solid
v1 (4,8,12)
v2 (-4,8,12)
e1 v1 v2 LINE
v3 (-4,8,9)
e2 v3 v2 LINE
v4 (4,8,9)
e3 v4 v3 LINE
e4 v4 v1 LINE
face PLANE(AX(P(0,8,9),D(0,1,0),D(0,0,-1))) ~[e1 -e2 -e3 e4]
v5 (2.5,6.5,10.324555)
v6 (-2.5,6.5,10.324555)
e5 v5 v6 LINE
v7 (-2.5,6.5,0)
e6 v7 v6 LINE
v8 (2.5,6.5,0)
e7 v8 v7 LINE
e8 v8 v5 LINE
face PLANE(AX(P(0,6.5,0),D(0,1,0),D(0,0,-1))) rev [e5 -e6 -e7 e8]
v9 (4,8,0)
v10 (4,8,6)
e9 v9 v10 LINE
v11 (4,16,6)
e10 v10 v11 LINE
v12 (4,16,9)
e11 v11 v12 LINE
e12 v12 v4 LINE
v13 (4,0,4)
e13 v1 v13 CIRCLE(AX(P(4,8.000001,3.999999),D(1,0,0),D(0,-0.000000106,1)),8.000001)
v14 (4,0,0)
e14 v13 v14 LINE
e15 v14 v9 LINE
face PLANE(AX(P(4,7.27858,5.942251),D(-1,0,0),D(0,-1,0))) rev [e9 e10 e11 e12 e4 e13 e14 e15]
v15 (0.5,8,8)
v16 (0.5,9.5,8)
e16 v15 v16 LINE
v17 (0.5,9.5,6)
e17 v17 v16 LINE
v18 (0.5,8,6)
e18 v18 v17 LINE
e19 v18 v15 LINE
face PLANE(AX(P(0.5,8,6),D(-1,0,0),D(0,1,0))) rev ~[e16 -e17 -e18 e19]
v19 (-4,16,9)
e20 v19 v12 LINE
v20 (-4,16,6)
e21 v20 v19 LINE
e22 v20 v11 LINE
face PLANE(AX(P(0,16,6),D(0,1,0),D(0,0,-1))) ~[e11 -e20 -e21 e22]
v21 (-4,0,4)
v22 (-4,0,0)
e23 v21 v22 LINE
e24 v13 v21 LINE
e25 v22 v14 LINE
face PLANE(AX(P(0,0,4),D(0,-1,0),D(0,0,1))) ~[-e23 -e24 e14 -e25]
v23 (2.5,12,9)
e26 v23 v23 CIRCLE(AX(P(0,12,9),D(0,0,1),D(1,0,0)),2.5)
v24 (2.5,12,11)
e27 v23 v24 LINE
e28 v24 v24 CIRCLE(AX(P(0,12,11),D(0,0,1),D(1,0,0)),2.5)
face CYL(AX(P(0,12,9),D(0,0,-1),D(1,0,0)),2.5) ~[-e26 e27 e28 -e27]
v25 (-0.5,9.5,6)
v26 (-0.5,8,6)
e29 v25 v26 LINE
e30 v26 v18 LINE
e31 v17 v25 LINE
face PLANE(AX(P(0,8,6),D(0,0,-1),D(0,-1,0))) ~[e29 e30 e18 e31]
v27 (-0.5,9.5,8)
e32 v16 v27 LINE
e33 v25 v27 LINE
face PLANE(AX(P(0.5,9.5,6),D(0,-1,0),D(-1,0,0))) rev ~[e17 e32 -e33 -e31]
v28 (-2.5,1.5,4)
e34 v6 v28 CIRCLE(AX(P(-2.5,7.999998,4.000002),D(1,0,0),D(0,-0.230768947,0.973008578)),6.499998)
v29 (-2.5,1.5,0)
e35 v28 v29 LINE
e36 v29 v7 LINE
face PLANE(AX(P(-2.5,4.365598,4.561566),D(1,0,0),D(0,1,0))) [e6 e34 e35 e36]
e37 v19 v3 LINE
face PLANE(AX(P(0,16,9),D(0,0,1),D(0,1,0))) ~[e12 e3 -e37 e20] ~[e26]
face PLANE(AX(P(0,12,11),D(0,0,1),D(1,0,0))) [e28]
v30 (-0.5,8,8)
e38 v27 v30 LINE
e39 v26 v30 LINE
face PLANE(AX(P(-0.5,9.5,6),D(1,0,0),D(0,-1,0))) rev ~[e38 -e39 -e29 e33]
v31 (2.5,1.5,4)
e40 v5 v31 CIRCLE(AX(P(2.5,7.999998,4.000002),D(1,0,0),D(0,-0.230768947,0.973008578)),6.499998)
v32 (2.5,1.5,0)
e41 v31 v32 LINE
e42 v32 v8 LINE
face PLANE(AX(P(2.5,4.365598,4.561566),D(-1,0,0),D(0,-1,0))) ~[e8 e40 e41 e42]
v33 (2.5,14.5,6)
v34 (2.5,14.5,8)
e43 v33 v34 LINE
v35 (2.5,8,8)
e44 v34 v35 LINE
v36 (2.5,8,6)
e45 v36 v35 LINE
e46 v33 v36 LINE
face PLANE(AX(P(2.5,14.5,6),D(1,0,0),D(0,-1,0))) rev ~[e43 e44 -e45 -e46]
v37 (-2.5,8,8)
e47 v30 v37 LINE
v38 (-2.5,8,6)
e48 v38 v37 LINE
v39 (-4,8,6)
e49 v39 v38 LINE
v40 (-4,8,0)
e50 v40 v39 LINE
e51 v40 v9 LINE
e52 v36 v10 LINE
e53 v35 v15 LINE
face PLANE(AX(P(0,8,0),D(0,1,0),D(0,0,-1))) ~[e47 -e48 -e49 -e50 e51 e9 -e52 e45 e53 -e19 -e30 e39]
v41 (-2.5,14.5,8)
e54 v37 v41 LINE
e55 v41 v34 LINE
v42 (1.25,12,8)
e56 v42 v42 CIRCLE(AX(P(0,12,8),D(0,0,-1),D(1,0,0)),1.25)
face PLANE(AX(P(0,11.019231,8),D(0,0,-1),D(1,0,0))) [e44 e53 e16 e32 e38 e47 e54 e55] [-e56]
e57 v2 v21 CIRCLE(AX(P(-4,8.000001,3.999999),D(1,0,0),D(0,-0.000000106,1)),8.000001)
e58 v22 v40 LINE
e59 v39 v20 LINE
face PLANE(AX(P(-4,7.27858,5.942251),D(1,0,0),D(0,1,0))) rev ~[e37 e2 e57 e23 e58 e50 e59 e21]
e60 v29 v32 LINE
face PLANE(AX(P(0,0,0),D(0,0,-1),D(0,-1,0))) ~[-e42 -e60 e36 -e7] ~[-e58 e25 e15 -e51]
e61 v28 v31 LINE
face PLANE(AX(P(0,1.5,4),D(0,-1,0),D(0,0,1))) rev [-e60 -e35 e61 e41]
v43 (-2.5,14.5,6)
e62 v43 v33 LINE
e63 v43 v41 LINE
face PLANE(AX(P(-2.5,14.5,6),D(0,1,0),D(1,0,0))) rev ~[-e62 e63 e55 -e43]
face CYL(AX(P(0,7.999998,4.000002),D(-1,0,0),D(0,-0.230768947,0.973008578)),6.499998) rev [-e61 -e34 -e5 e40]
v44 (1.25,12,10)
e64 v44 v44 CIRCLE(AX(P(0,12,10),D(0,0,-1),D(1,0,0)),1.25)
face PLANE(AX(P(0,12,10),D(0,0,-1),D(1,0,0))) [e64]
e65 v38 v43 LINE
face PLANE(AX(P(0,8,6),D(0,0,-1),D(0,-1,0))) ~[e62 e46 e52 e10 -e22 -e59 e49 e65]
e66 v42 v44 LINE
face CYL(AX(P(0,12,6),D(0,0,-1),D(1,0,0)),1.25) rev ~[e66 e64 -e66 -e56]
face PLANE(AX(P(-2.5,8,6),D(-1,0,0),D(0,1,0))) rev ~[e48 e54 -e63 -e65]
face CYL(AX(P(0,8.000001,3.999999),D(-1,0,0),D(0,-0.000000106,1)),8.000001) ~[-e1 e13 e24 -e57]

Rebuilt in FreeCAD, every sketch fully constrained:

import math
import FreeCAD as App
import Part
import Sketcher

doc = App.newDocument("Part")
body = doc.addObject("PartDesign::Body", "Body")

sketch1 = body.newObject("Sketcher::SketchObject", "Sketch")
sketch1.AttachmentSupport = (doc.getObject("YZ_Plane"), [""])
sketch1.MapMode = "FlatFace"
sketch1.addGeometry([
    Part.LineSegment(App.Vector(0, 4, 0), App.Vector(0, 0, 0)),
    Part.LineSegment(App.Vector(0, 0, 0), App.Vector(8, 0, 0)),
    Part.LineSegment(App.Vector(8, 0, 0), App.Vector(8, 6, 0)),
    Part.LineSegment(App.Vector(8, 6, 0), App.Vector(16, 6, 0)),
    Part.LineSegment(App.Vector(16, 6, 0), App.Vector(16, 9, 0)),
    Part.LineSegment(App.Vector(16, 9, 0), App.Vector(8, 9, 0)),
    Part.LineSegment(App.Vector(8, 9, 0), App.Vector(8, 12, 0)),
    Part.ArcOfCircle(Part.Circle(App.Vector(8, 4, 0), App.Vector(0, 0, 1), 8), math.radians(90), math.radians(180)),
], False)
sketch1.addConstraint([
    Sketcher.Constraint("Coincident", 0, 2, 1, 1),
    Sketcher.Constraint("Coincident", 1, 2, 2, 1),
    Sketcher.Constraint("Coincident", 2, 2, 3, 1),
    Sketcher.Constraint("Coincident", 3, 2, 4, 1),
    Sketcher.Constraint("Coincident", 4, 2, 5, 1),
    Sketcher.Constraint("Coincident", 5, 2, 6, 1),
    Sketcher.Constraint("Coincident", 6, 2, 7, 1),
    Sketcher.Constraint("Tangent", 7, 2, 0, 1),
    Sketcher.Constraint("Vertical", 0),
    Sketcher.Constraint("Horizontal", 1),
    Sketcher.Constraint("Vertical", 2),
    Sketcher.Constraint("Horizontal", 3),
    Sketcher.Constraint("Vertical", 4),
    Sketcher.Constraint("Horizontal", 5),
    Sketcher.Constraint("Vertical", 6),
    Sketcher.Constraint("Coincident", 0, 2, -1, 1),
    Sketcher.Constraint("Vertical", 7, 3, 1, 2),
    Sketcher.Constraint("Vertical", 2, 2, 5, 2),
    Sketcher.Constraint("Equal", 1, 3),
    Sketcher.Constraint("Equal", 4, 6),
    Sketcher.Constraint("Radius", 7, 8.000001),
    Sketcher.Constraint("DistanceY", 0, 2, 0, 1, 4.0),
    Sketcher.Constraint("DistanceY", 2, 1, 2, 2, 6.0),
])
pad1 = body.newObject("PartDesign::Pad", "Pad")
pad1.Profile = sketch1
pad1.Length = 4
pad1.Reversed = True

sketch2 = body.newObject("Sketcher::SketchObject", "Sketch001")
sketch2.AttachmentSupport = (doc.getObject("YZ_Plane"), [""])
sketch2.MapMode = "FlatFace"
sketch2.addGeometry([
    Part.LineSegment(App.Vector(6.5, 0, 0), App.Vector(6.5, 10.3, 0)),
    Part.ArcOfCircle(Part.Circle(App.Vector(8, 4, 0), App.Vector(0, 0, 1), 6.5), math.radians(103), math.radians(180)),
    Part.LineSegment(App.Vector(1.5, 4, 0), App.Vector(1.5, 0, 0)),
    Part.LineSegment(App.Vector(1.5, 0, 0), App.Vector(6.5, 0, 0)),
], False)
sketch2.addConstraint([
    Sketcher.Constraint("Coincident", 0, 2, 1, 1),
    Sketcher.Constraint("Tangent", 1, 2, 2, 1),
    Sketcher.Constraint("Coincident", 2, 2, 3, 1),
    Sketcher.Constraint("Coincident", 3, 2, 0, 1),
    Sketcher.Constraint("Vertical", 0),
    Sketcher.Constraint("Vertical", 2),
    Sketcher.Constraint("Horizontal", 3),
    Sketcher.Constraint("PointOnObject", 2, 2, -1),
    Sketcher.Constraint("DistanceX", 3, 1, 3, 2, 5.0),
    Sketcher.Constraint("DistanceY", 2, 2, 2, 1, 4.0),
    Sketcher.Constraint("DistanceX", -1, 1, 0, 2, 6.5),
    Sketcher.Constraint("Radius", 1, 6.499998),
])
pocket1 = body.newObject("PartDesign::Pocket", "Pocket")
pocket1.Profile = sketch2
pocket1.Length = 2.5
body2 = doc.addObject("PartDesign::Body", "Body001")
doc.recompute()

body2.BaseFeature = body
doc.recompute()

mirroring = doc.addObject("Part::Mirroring", "Mirroring")
mirroring.Source = body
mirroring.Base = App.Vector(0, 7.388969, 6.713356)
mirroring.Normal = App.Vector(1, 0, 0)
body3 = doc.addObject("PartDesign::Body", "Body002")
body3.BaseFeature = mirroring
boolean = body2.newObject("PartDesign::Boolean", "Boolean")
boolean.Type = "Fuse"
boolean.addObjects([body3])
doc.recompute()

sketch3 = body2.newObject("Sketcher::SketchObject", "Sketch002")
sketch3.AttachmentSupport = (doc.getObject("XY_Plane001"), [""])
sketch3.MapMode = "FlatFace"
sketch3.AttachmentOffset = App.Placement(App.Vector(0, 0, 9), App.Rotation())
sketch3.addGeometry(Part.Circle(App.Vector(0, 12, 0), App.Vector(0, 0, 1), 2.5), False)
sketch3.addConstraint([
    Sketcher.Constraint("PointOnObject", 0, 3, -2),
    Sketcher.Constraint("Diameter", 0, 5.0),
    Sketcher.Constraint("DistanceY", -1, 1, 0, 3, 12.0),
])
pad2 = body2.newObject("PartDesign::Pad", "Pad001")
pad2.Profile = sketch3
pad2.Length = 2

sketch4 = body2.newObject("Sketcher::SketchObject", "Sketch003")
sketch4.AttachmentSupport = (doc.getObject("XY_Plane001"), [""])
sketch4.MapMode = "FlatFace"
sketch4.AttachmentOffset = App.Placement(App.Vector(0, 0, 6), App.Rotation())
sketch4.addGeometry(Part.Circle(App.Vector(0, 12, 0), App.Vector(0, 0, 1), 1.2), False)
sketch4.addConstraint([
    Sketcher.Constraint("PointOnObject", 0, 3, -2),
    Sketcher.Constraint("Diameter", 0, 2.5),
    Sketcher.Constraint("DistanceY", -1, 1, 0, 3, 12.0),
])
pocket2 = body2.newObject("PartDesign::Pocket", "Pocket001")
pocket2.Profile = sketch4
pocket2.Length = 4
pocket2.Reversed = True

sketch5 = body2.newObject("Sketcher::SketchObject", "Sketch004")
sketch5.AttachmentSupport = (doc.getObject("XY_Plane001"), [""])
sketch5.MapMode = "FlatFace"
sketch5.AttachmentOffset = App.Placement(App.Vector(0, 0, 6), App.Rotation())
sketch5.addGeometry([
    Part.LineSegment(App.Vector(-2.5, 8, 0), App.Vector(-2.5, 14.5, 0)),
    Part.LineSegment(App.Vector(-2.5, 14.5, 0), App.Vector(2.5, 14.5, 0)),
    Part.LineSegment(App.Vector(2.5, 14.5, 0), App.Vector(2.5, 8, 0)),
    Part.LineSegment(App.Vector(2.5, 8, 0), App.Vector(0.5, 8, 0)),
    Part.LineSegment(App.Vector(0.5, 8, 0), App.Vector(0.5, 9.5, 0)),
    Part.LineSegment(App.Vector(0.5, 9.5, 0), App.Vector(-0.5, 9.5, 0)),
    Part.LineSegment(App.Vector(-0.5, 9.5, 0), App.Vector(-0.5, 8, 0)),
    Part.LineSegment(App.Vector(-0.5, 8, 0), App.Vector(-2.5, 8, 0)),
], False)
sketch5.addConstraint([
    Sketcher.Constraint("Coincident", 0, 2, 1, 1),
    Sketcher.Constraint("Coincident", 1, 2, 2, 1),
    Sketcher.Constraint("Coincident", 2, 2, 3, 1),
    Sketcher.Constraint("Coincident", 3, 2, 4, 1),
    Sketcher.Constraint("Coincident", 4, 2, 5, 1),
    Sketcher.Constraint("Coincident", 5, 2, 6, 1),
    Sketcher.Constraint("Coincident", 6, 2, 7, 1),
    Sketcher.Constraint("Coincident", 7, 2, 0, 1),
    Sketcher.Constraint("Vertical", 0),
    Sketcher.Constraint("Horizontal", 1),
    Sketcher.Constraint("Vertical", 2),
    Sketcher.Constraint("Horizontal", 3),
    Sketcher.Constraint("Vertical", 4),
    Sketcher.Constraint("Horizontal", 5),
    Sketcher.Constraint("Vertical", 6),
    Sketcher.Constraint("Horizontal", 7),
    Sketcher.Constraint("Symmetric", 3, 2, 6, 2, -2),
    Sketcher.Constraint("Equal", 3, 7),
    Sketcher.Constraint("DistanceX", 1, 1, 1, 2, 5.0),
    Sketcher.Constraint("DistanceX", 3, 2, 3, 1, 2.0),
    Sketcher.Constraint("DistanceY", 0, 1, 0, 2, 6.5),
    Sketcher.Constraint("DistanceY", 4, 1, 4, 2, 1.5),
    Sketcher.Constraint("DistanceY", -1, 1, 2, 2, 8.0),
])
pocket3 = body2.newObject("PartDesign::Pocket", "Pocket002")
pocket3.Profile = sketch5
pocket3.Length = 2
pocket3.Reversed = True
mirroring.Visibility = False

doc.recompute()
